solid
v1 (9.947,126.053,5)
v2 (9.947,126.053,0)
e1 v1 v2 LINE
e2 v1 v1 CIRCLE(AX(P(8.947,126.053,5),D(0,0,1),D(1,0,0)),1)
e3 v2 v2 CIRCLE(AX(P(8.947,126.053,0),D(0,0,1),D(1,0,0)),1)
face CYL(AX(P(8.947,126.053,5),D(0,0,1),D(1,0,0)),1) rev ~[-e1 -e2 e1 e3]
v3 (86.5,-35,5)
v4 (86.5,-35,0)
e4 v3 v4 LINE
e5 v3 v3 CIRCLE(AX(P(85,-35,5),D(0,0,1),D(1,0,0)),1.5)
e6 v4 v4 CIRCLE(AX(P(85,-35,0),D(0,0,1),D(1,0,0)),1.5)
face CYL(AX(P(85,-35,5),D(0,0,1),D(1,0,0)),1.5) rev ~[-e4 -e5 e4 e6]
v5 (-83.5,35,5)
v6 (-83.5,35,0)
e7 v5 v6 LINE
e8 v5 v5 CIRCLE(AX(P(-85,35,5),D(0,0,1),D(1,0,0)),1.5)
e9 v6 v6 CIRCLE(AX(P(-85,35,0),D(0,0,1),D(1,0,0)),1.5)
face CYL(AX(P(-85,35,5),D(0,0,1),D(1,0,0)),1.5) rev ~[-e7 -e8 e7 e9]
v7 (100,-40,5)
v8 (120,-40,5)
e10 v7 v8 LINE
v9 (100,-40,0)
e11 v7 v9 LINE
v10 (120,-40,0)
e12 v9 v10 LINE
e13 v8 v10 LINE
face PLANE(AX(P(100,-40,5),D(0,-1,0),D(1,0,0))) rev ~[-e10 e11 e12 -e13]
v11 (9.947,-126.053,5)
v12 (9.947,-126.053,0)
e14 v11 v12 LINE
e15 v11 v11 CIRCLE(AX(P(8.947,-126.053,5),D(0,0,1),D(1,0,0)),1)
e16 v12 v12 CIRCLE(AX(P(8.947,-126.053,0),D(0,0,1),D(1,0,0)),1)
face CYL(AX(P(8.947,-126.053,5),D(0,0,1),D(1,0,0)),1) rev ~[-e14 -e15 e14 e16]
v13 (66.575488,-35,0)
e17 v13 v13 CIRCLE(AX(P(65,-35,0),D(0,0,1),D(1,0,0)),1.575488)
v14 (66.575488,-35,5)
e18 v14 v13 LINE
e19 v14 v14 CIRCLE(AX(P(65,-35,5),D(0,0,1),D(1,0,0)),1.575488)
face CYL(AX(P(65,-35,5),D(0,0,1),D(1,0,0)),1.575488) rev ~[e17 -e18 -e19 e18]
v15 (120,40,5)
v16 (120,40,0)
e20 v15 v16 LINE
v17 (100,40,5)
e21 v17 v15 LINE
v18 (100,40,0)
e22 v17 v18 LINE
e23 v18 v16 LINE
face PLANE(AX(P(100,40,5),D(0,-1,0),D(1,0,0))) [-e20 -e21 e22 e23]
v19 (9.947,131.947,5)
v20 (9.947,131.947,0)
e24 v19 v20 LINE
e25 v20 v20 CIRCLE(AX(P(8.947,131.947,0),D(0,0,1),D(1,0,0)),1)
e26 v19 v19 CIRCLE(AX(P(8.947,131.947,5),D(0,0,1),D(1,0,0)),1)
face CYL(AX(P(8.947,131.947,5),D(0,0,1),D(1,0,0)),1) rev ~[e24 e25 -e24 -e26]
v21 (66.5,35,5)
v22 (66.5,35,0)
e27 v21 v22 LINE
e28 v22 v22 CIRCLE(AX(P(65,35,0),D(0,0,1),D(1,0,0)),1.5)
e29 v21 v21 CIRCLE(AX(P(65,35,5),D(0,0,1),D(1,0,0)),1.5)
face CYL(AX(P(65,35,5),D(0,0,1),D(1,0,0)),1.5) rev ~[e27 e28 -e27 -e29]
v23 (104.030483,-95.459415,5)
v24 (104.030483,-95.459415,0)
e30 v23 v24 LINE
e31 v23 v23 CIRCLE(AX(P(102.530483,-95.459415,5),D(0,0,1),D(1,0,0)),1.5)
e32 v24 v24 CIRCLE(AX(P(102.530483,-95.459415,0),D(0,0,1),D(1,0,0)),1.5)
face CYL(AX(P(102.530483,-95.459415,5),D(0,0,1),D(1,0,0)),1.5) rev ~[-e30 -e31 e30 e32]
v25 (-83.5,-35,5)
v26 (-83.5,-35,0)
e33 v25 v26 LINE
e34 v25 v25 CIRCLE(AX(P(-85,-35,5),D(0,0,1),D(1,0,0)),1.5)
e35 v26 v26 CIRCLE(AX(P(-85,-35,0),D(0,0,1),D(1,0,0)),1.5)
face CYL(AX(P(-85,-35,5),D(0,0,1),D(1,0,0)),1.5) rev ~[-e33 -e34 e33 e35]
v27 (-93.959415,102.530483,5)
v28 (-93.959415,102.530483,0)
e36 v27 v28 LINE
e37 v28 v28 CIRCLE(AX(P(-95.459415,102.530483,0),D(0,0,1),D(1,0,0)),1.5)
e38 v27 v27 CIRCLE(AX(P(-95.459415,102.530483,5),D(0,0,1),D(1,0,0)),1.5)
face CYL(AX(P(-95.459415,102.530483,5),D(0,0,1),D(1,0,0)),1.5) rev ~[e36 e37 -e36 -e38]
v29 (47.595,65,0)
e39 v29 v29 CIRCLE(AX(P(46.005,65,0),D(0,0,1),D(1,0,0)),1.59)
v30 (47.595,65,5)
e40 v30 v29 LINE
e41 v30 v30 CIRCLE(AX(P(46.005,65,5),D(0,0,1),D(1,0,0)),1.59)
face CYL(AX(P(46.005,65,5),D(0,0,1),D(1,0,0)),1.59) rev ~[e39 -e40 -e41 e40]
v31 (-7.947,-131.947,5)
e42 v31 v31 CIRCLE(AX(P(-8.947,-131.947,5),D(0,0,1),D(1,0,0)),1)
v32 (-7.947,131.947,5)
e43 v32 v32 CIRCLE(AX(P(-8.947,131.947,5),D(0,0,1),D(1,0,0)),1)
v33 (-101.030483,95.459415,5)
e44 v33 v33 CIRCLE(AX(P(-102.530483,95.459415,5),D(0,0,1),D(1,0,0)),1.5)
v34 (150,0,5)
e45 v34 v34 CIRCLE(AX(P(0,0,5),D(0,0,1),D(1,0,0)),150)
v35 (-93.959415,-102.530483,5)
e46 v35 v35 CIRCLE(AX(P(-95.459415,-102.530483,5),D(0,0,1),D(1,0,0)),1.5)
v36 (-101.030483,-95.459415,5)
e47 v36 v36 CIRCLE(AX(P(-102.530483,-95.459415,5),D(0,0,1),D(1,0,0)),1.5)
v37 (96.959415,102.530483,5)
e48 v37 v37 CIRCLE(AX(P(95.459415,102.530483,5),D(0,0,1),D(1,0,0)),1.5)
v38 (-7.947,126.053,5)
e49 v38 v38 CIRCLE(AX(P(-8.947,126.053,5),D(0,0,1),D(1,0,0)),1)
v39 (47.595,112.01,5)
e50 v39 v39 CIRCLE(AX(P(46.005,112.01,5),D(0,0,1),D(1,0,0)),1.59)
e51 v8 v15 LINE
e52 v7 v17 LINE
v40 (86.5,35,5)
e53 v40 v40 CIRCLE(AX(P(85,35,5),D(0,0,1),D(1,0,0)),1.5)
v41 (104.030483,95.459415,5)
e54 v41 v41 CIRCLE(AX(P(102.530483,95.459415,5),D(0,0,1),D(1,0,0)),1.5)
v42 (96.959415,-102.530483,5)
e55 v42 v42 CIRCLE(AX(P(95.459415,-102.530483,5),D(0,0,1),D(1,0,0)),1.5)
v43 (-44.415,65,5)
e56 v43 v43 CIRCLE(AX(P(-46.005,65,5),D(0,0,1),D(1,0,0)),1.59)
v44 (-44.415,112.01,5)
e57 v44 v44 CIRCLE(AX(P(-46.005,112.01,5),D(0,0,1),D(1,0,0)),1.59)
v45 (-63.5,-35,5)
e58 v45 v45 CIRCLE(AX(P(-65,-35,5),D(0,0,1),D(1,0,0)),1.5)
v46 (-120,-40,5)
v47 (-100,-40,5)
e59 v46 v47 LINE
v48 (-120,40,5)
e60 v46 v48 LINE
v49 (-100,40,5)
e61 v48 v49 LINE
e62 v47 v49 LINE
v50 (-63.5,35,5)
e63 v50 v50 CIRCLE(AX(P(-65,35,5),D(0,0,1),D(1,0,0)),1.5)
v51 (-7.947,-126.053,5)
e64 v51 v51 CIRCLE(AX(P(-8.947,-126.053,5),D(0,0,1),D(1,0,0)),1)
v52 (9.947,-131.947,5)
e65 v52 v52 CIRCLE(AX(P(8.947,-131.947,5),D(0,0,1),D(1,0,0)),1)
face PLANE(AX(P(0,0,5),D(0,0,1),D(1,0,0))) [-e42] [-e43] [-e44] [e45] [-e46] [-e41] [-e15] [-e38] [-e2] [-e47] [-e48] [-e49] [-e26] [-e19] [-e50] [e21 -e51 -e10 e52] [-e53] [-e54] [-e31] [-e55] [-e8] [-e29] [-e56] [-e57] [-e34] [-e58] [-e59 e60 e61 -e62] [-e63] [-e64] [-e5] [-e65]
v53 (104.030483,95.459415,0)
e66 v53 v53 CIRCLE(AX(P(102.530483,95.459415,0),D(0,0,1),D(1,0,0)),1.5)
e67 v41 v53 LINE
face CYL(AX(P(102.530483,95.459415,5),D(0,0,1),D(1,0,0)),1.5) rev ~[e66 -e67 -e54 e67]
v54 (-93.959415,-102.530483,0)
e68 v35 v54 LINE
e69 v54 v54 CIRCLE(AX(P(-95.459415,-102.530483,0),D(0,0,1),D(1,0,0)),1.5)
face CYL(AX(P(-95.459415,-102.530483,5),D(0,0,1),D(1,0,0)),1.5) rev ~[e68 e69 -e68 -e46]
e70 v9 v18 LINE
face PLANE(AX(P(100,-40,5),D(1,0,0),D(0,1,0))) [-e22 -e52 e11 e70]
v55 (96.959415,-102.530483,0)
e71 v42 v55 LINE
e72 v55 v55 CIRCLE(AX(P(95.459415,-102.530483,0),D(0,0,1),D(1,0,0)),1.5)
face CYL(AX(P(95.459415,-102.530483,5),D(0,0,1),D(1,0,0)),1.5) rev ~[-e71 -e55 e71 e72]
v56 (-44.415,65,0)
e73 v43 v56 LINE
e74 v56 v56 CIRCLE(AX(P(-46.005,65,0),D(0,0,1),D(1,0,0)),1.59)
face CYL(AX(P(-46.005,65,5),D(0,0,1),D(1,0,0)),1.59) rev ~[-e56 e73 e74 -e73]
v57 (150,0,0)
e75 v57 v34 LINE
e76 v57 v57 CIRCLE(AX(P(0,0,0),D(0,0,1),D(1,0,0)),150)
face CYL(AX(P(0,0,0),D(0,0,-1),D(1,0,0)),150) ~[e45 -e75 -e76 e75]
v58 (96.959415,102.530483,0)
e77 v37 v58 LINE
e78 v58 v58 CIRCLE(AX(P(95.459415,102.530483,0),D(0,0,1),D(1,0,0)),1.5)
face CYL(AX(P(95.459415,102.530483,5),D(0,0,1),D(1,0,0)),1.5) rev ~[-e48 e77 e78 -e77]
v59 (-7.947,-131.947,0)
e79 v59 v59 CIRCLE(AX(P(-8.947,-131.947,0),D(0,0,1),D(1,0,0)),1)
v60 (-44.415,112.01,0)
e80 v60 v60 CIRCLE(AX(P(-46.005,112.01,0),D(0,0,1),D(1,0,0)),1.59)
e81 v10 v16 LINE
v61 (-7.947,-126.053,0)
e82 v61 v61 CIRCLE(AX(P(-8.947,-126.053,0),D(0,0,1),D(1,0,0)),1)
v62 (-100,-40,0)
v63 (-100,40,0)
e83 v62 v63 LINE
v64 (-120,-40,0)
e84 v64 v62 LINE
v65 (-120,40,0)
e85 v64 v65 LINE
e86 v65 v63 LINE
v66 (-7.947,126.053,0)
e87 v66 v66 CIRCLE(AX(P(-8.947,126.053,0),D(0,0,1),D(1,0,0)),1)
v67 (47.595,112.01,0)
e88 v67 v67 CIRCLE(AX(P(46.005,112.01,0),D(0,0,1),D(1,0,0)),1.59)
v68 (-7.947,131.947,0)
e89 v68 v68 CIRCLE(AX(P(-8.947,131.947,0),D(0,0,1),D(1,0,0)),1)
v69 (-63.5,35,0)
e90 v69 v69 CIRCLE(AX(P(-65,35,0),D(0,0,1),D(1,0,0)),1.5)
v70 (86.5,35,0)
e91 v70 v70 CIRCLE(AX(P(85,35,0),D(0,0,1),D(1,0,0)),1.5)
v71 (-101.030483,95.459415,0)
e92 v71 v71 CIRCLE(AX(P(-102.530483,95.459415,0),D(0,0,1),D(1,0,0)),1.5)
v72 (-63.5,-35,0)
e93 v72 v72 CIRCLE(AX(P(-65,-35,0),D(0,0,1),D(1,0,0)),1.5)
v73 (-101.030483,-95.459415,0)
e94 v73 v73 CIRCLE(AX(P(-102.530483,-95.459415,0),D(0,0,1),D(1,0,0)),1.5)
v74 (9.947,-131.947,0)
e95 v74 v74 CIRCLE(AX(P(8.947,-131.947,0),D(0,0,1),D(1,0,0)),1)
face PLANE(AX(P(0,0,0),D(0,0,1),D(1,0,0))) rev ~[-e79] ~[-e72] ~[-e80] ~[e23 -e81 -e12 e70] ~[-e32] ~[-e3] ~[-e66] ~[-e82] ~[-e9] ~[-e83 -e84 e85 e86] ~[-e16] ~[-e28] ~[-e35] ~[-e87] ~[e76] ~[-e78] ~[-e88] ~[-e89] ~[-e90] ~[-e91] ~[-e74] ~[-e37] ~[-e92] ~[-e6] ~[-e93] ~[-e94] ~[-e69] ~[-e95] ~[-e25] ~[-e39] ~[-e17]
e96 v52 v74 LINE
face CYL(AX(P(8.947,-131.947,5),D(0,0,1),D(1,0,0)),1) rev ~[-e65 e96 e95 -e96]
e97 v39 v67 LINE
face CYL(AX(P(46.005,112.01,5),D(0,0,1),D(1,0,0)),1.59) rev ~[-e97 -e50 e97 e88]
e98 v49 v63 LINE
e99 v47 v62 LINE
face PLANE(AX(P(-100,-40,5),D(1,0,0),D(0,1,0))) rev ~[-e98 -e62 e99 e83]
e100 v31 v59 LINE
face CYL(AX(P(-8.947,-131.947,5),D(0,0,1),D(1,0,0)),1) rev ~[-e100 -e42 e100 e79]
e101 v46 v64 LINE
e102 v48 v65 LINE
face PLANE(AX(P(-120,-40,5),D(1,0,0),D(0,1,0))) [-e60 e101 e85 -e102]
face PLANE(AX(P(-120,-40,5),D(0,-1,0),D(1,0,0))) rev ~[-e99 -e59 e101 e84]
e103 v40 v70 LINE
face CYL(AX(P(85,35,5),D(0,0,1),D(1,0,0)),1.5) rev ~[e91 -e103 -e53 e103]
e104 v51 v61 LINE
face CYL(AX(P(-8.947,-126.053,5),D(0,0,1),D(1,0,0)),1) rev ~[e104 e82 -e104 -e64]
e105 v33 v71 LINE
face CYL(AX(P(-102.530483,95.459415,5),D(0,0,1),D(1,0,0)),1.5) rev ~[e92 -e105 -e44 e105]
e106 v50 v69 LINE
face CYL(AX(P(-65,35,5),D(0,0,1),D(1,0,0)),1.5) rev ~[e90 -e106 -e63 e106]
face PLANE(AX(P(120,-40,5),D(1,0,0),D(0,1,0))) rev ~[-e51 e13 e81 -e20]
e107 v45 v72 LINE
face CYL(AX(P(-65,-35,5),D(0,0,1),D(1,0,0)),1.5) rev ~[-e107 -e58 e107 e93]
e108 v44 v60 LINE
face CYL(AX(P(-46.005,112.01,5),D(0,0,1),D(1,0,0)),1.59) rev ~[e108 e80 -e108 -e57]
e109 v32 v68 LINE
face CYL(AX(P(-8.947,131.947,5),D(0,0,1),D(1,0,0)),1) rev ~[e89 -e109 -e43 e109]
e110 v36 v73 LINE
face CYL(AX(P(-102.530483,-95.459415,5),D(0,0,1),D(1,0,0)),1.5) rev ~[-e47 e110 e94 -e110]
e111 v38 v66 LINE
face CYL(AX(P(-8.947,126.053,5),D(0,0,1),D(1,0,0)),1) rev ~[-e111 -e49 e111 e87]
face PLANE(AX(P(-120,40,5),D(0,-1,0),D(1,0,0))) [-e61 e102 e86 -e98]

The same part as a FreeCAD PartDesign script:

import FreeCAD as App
import Part
import Sketcher
from FreeCAD import Vector


def add_polygon(sketch, points):
    """Adds a closed chain of lines whose ends are joined by coincident constraints."""
    first, n = sketch.GeometryCount, len(points)
    for a, b in zip(points, points[1:] + points[:1]):
        sketch.addGeometry(Part.LineSegment(App.Vector(*a, 0), App.Vector(*b, 0)), False)
    for i in range(n):
        sketch.addConstraint(Sketcher.Constraint("Coincident", first + i, 2, first + (i + 1) % n, 1))

doc = App.newDocument("Part")
body = doc.addObject("PartDesign::Body", "Body")

sketch1 = body.newObject("Sketcher::SketchObject", "Sketch")
sketch1.AttachmentSupport = (doc.getObject("XY_Plane"), [""])
sketch1.MapMode = "FlatFace"
sketch1.addGeometry(Part.Circle(Vector(0, 0, 0), Vector(0, 0, 1), 150), False)
sketch1.addConstraint(Sketcher.Constraint("Coincident", 0, 3, -1, 1))
sketch1.addConstraint(Sketcher.Constraint("Diameter", 0, 300.0))
pad1 = body.newObject("PartDesign::Pad", "Pad")
pad1.Profile = sketch1
pad1.Length = 5

sketch2 = body.newObject("Sketcher::SketchObject", "Sketch001")
sketch2.AttachmentSupport = (doc.getObject("XY_Plane"), [""])
sketch2.MapMode = "FlatFace"
sketch2.AttachmentOffset = App.Placement(Vector(0, 0, 5), App.Rotation())
add_polygon(sketch2, [(-120, 40), (-120, -40), (-100, -40), (-100, 40)])
add_polygon(sketch2, [(100, 40), (100, -40), (120, -40), (120, 40)])
sketch2.addConstraint(Sketcher.Constraint("Vertical", 0))
sketch2.addConstraint(Sketcher.Constraint("Horizontal", 1))
sketch2.addConstraint(Sketcher.Constraint("Vertical", 2))
sketch2.addConstraint(Sketcher.Constraint("Horizontal", 3))
sketch2.addConstraint(Sketcher.Constraint("Vertical", 4))
sketch2.addConstraint(Sketcher.Constraint("Horizontal", 5))
sketch2.addConstraint(Sketcher.Constraint("Vertical", 6))
sketch2.addConstraint(Sketcher.Constraint("Horizontal", 7))
sketch2.addConstraint(Sketcher.Constraint("Symmetric", 2, 2, 4, 2, -1, 1))
sketch2.addConstraint(Sketcher.Constraint("Symmetric", 0, 2, 6, 2, -1, 1))
sketch2.addConstraint(Sketcher.Constraint("Horizontal", 1, 2, 4, 2))
sketch2.addConstraint(Sketcher.Constraint("DistanceX", 1, 1, 1, 2, 20.0))
sketch2.addConstraint(Sketcher.Constraint("DistanceY", 0, 2, 0, 1, 80.0))
sketch2.addConstraint(Sketcher.Constraint("DistanceX", 0, 2, -1, 1, 120.0))
pocket1 = body.newObject("PartDesign::Pocket", "Pocket")
pocket1.Profile = sketch2
pocket1.Type = "ThroughAll"

sketch3 = body.newObject("Sketcher::SketchObject", "Sketch002")
sketch3.AttachmentSupport = (doc.getObject("XY_Plane"), [""])
sketch3.MapMode = "FlatFace"
sketch3.AttachmentOffset = App.Placement(Vector(0, 0, 5), App.Rotation())
sketch3.addGeometry(Part.Circle(Vector(-85, 35, 0), Vector(0, 0, 1), 1.5), False)
sketch3.addGeometry(Part.Circle(Vector(-85, -35, 0), Vector(0, 0, 1), 1.5), False)
sketch3.addGeometry(Part.Circle(Vector(85, 35, 0), Vector(0, 0, 1), 1.5), False)
sketch3.addGeometry(Part.Circle(Vector(85, -35, 0), Vector(0, 0, 1), 1.5), False)
sketch3.addGeometry(Part.Circle(Vector(65, -35, 0), Vector(0, 0, 1), 1.6), False)
sketch3.addGeometry(Part.Circle(Vector(65, 35, 0), Vector(0, 0, 1), 1.5), False)
sketch3.addGeometry(Part.Circle(Vector(-65, -35, 0), Vector(0, 0, 1), 1.5), False)
sketch3.addGeometry(Part.Circle(Vector(-65, 35, 0), Vector(0, 0, 1), 1.5), False)
sketch3.addConstraint(Sketcher.Constraint("Equal", 0, 1))
sketch3.addConstraint(Sketcher.Constraint("Equal", 1, 2))
sketch3.addConstraint(Sketcher.Constraint("Equal", 2, 3))
sketch3.addConstraint(Sketcher.Constraint("Equal", 3, 5))
sketch3.addConstraint(Sketcher.Constraint("Equal", 5, 6))
sketch3.addConstraint(Sketcher.Constraint("Equal", 6, 7))
sketch3.addConstraint(Sketcher.Constraint("Symmetric", 1, 3, 2, 3, -1, 1))
sketch3.addConstraint(Sketcher.Constraint("Symmetric", 0, 3, 3, 3, -1, 1))
sketch3.addConstraint(Sketcher.Constraint("Symmetric", 5, 3, 6, 3, -1, 1))
sketch3.addConstraint(Sketcher.Constraint("Symmetric", 4, 3, 7, 3, -1, 1))
sketch3.addConstraint(Sketcher.Constraint("Symmetric", 0, 3, 2, 3, -2))
sketch3.addConstraint(Sketcher.Constraint("Symmetric", 4, 3, 6, 3, -2))
sketch3.addConstraint(Sketcher.Constraint("Horizontal", 3, 3, 4, 3))
sketch3.addConstraint(Sketcher.Constraint("Diameter", 0, 3.0))
sketch3.addConstraint(Sketcher.Constraint("DistanceX", 0, 3, -1, 1, 85.0))
sketch3.addConstraint(Sketcher.Constraint("DistanceY", -1, 1, 0, 3, 35.0))
sketch3.addConstraint(Sketcher.Constraint("DistanceX", -1, 1, 4, 3, 65.0))
sketch3.addConstraint(Sketcher.Constraint("Diameter", 4, 3.150975))
pocket2 = body.newObject("PartDesign::Pocket", "Pocket001")
pocket2.Profile = sketch3
pocket2.Type = "ThroughAll"

sketch4 = body.newObject("Sketcher::SketchObject", "Sketch003")
sketch4.AttachmentSupport = (doc.getObject("XY_Plane"), [""])
sketch4.MapMode = "FlatFace"
sketch4.AttachmentOffset = App.Placement(Vector(0, 0, 5), App.Rotation())
sketch4.addGeometry(Part.Circle(Vector(-102.5, 95.5, 0), Vector(0, 0, 1), 1.5), False)
sketch4.addGeometry(Part.Circle(Vector(-95.5, 102.5, 0), Vector(0, 0, 1), 1.5), False)
sketch4.addGeometry(Part.Circle(Vector(95.5, 102.5, 0), Vector(0, 0, 1), 1.5), False)
sketch4.addGeometry(Part.Circle(Vector(102.5, 95.5, 0), Vector(0, 0, 1), 1.5), False)
sketch4.addGeometry(Part.Circle(Vector(102.5, -95.5, 0), Vector(0, 0, 1), 1.5), False)
sketch4.addGeometry(Part.Circle(Vector(95.5, -102.5, 0), Vector(0, 0, 1), 1.5), False)
sketch4.addGeometry(Part.Circle(Vector(-95.5, -102.5, 0), Vector(0, 0, 1), 1.5), False)
sketch4.addGeometry(Part.Circle(Vector(-102.5, -95.5, 0), Vector(0, 0, 1), 1.5), False)
sketch4.addConstraint(Sketcher.Constraint("Equal", 0, 1))
sketch4.addConstraint(Sketcher.Constraint("Equal", 1, 2))
sketch4.addConstraint(Sketcher.Constraint("Equal", 2, 3))
sketch4.addConstraint(Sketcher.Constraint("Equal", 3, 4))
sketch4.addConstraint(Sketcher.Constraint("Equal", 4, 5))
sketch4.addConstraint(Sketcher.Constraint("Equal", 5, 6))
sketch4.addConstraint(Sketcher.Constraint("Equal", 6, 7))
sketch4.addConstraint(Sketcher.Constraint("Symmetric", 0, 3, 4, 3, -1, 1))
sketch4.addConstraint(Sketcher.Constraint("Symmetric", 1, 3, 5, 3, -1, 1))
sketch4.addConstraint(Sketcher.Constraint("Symmetric", 2, 3, 6, 3, -1, 1))
sketch4.addConstraint(Sketcher.Constraint("Symmetric", 3, 3, 7, 3, -1, 1))
sketch4.addConstraint(Sketcher.Constraint("Symmetric", 1, 3, 2, 3, -2))
sketch4.addConstraint(Sketcher.Constraint("Symmetric", 0, 3, 3, 3, -2))
sketch4.addConstraint(Sketcher.Constraint("Diameter", 0, 3.0))
sketch4.addConstraint(Sketcher.Constraint("DistanceX", 0, 3, 2, 3, 197.989899))
sketch4.addConstraint(Sketcher.Constraint("DistanceY", 4, 3, 2, 3, 197.989899))
sketch4.addConstraint(Sketcher.Constraint("DistanceX", 1, 3, 2, 3, 190.918831))
sketch4.addConstraint(Sketcher.Constraint("DistanceY", 4, 3, 3, 3, 190.918831))
pocket3 = body.newObject("PartDesign::Pocket", "Pocket002")
pocket3.Profile = sketch4
pocket3.Type = "ThroughAll"

sketch5 = body.newObject("Sketcher::SketchObject", "Sketch004")
sketch5.AttachmentSupport = (doc.getObject("XY_Plane"), [""])
sketch5.MapMode = "FlatFace"
sketch5.AttachmentOffset = App.Placement(Vector(0, 0, 5), App.Rotation())
sketch5.addGeometry(Part.Circle(Vector(8.9, 126.1, 0), Vector(0, 0, 1), 1), False)
sketch5.addGeometry(Part.Circle(Vector(8.9, 131.9, 0), Vector(0, 0, 1), 1), False)
sketch5.addGeometry(Part.Circle(Vector(-8.9, 126.1, 0), Vector(0, 0, 1), 1), False)
sketch5.addGeometry(Part.Circle(Vector(-8.9, 131.9, 0), Vector(0, 0, 1), 1), False)
sketch5.addGeometry(Part.Circle(Vector(8.9, -131.9, 0), Vector(0, 0, 1), 1), False)
sketch5.addGeometry(Part.Circle(Vector(-8.9, -131.9, 0), Vector(0, 0, 1), 1), False)
sketch5.addGeometry(Part.Circle(Vector(8.9, -126.1, 0), Vector(0, 0, 1), 1), False)
sketch5.addGeometry(Part.Circle(Vector(-8.9, -126.1, 0), Vector(0, 0, 1), 1), False)
sketch5.addConstraint(Sketcher.Constraint("Equal", 0, 1))
sketch5.addConstraint(Sketcher.Constraint("Equal", 1, 2))
sketch5.addConstraint(Sketcher.Constraint("Equal", 2, 3))
sketch5.addConstraint(Sketcher.Constraint("Equal", 3, 4))
sketch5.addConstraint(Sketcher.Constraint("Equal", 4, 5))
sketch5.addConstraint(Sketcher.Constraint("Equal", 5, 6))
sketch5.addConstraint(Sketcher.Constraint("Equal", 6, 7))
sketch5.addConstraint(Sketcher.Constraint("Symmetric", 3, 3, 4, 3, -1, 1))
sketch5.addConstraint(Sketcher.Constraint("Symmetric", 1, 3, 5, 3, -1, 1))
sketch5.addConstraint(Sketcher.Constraint("Symmetric", 2, 3, 6, 3, -1, 1))
sketch5.addConstraint(Sketcher.Constraint("Symmetric", 0, 3, 7, 3, -1, 1))
sketch5.addConstraint(Sketcher.Constraint("Symmetric", 0, 3, 2, 3, -2))
sketch5.addConstraint(Sketcher.Constraint("Symmetric", 1, 3, 3, 3, -2))
sketch5.addConstraint(Sketcher.Constraint("Vertical", 0, 3, 1, 3))
sketch5.addConstraint(Sketcher.Constraint("Diameter", 0, 2.0))
sketch5.addConstraint(Sketcher.Constraint("DistanceY", 4, 3, 0, 3, 258.0))
sketch5.addConstraint(Sketcher.Constraint("DistanceX", -1, 1, 0, 3, 8.947))
sketch5.addConstraint(Sketcher.Constraint("DistanceY", -1, 1, 0, 3, 126.053))
pocket4 = body.newObject("PartDesign::Pocket", "Pocket003")
pocket4.Profile = sketch5
pocket4.Type = "ThroughAll"

sketch6 = body.newObject("Sketcher::SketchObject", "Sketch005")
sketch6.AttachmentSupport = (doc.getObject("XY_Plane"), [""])
sketch6.MapMode = "FlatFace"
sketch6.AttachmentOffset = App.Placement(Vector(0, 0, 5), App.Rotation())
sketch6.addGeometry(Part.Circle(Vector(46, 65, 0), Vector(0, 0, 1), 1.6), False)
sketch6.addGeometry(Part.Circle(Vector(46, 112, 0), Vector(0, 0, 1), 1.6), False)
sketch6.addGeometry(Part.Circle(Vector(-46, 65, 0), Vector(0, 0, 1), 1.6), False)
sketch6.addGeometry(Part.Circle(Vector(-46, 112, 0), Vector(0, 0, 1), 1.6), False)
sketch6.addConstraint(Sketcher.Constraint("Equal", 0, 1))
sketch6.addConstraint(Sketcher.Constraint("Equal", 1, 2))
sketch6.addConstraint(Sketcher.Constraint("Equal", 2, 3))
sketch6.addConstraint(Sketcher.Constraint("Symmetric", 0, 3, 2, 3, -2))
sketch6.addConstraint(Sketcher.Constraint("Symmetric", 1, 3, 3, 3, -2))
sketch6.addConstraint(Sketcher.Constraint("Vertical", 0, 3, 1, 3))
sketch6.addConstraint(Sketcher.Constraint("Diameter", 0, 3.18))
sketch6.addConstraint(Sketcher.Constraint("DistanceY", -1, 1, 0, 3, 65.0))
sketch6.addConstraint(Sketcher.Constraint("DistanceY", -1, 1, 1, 3, 112.01))
sketch6.addConstraint(Sketcher.Constraint("DistanceX", 2, 3, 0, 3, 92.01))
pocket5 = body.newObject("PartDesign::Pocket", "Pocket004")
pocket5.Profile = sketch6
pocket5.Type = "ThroughAll"

doc.recompute()
